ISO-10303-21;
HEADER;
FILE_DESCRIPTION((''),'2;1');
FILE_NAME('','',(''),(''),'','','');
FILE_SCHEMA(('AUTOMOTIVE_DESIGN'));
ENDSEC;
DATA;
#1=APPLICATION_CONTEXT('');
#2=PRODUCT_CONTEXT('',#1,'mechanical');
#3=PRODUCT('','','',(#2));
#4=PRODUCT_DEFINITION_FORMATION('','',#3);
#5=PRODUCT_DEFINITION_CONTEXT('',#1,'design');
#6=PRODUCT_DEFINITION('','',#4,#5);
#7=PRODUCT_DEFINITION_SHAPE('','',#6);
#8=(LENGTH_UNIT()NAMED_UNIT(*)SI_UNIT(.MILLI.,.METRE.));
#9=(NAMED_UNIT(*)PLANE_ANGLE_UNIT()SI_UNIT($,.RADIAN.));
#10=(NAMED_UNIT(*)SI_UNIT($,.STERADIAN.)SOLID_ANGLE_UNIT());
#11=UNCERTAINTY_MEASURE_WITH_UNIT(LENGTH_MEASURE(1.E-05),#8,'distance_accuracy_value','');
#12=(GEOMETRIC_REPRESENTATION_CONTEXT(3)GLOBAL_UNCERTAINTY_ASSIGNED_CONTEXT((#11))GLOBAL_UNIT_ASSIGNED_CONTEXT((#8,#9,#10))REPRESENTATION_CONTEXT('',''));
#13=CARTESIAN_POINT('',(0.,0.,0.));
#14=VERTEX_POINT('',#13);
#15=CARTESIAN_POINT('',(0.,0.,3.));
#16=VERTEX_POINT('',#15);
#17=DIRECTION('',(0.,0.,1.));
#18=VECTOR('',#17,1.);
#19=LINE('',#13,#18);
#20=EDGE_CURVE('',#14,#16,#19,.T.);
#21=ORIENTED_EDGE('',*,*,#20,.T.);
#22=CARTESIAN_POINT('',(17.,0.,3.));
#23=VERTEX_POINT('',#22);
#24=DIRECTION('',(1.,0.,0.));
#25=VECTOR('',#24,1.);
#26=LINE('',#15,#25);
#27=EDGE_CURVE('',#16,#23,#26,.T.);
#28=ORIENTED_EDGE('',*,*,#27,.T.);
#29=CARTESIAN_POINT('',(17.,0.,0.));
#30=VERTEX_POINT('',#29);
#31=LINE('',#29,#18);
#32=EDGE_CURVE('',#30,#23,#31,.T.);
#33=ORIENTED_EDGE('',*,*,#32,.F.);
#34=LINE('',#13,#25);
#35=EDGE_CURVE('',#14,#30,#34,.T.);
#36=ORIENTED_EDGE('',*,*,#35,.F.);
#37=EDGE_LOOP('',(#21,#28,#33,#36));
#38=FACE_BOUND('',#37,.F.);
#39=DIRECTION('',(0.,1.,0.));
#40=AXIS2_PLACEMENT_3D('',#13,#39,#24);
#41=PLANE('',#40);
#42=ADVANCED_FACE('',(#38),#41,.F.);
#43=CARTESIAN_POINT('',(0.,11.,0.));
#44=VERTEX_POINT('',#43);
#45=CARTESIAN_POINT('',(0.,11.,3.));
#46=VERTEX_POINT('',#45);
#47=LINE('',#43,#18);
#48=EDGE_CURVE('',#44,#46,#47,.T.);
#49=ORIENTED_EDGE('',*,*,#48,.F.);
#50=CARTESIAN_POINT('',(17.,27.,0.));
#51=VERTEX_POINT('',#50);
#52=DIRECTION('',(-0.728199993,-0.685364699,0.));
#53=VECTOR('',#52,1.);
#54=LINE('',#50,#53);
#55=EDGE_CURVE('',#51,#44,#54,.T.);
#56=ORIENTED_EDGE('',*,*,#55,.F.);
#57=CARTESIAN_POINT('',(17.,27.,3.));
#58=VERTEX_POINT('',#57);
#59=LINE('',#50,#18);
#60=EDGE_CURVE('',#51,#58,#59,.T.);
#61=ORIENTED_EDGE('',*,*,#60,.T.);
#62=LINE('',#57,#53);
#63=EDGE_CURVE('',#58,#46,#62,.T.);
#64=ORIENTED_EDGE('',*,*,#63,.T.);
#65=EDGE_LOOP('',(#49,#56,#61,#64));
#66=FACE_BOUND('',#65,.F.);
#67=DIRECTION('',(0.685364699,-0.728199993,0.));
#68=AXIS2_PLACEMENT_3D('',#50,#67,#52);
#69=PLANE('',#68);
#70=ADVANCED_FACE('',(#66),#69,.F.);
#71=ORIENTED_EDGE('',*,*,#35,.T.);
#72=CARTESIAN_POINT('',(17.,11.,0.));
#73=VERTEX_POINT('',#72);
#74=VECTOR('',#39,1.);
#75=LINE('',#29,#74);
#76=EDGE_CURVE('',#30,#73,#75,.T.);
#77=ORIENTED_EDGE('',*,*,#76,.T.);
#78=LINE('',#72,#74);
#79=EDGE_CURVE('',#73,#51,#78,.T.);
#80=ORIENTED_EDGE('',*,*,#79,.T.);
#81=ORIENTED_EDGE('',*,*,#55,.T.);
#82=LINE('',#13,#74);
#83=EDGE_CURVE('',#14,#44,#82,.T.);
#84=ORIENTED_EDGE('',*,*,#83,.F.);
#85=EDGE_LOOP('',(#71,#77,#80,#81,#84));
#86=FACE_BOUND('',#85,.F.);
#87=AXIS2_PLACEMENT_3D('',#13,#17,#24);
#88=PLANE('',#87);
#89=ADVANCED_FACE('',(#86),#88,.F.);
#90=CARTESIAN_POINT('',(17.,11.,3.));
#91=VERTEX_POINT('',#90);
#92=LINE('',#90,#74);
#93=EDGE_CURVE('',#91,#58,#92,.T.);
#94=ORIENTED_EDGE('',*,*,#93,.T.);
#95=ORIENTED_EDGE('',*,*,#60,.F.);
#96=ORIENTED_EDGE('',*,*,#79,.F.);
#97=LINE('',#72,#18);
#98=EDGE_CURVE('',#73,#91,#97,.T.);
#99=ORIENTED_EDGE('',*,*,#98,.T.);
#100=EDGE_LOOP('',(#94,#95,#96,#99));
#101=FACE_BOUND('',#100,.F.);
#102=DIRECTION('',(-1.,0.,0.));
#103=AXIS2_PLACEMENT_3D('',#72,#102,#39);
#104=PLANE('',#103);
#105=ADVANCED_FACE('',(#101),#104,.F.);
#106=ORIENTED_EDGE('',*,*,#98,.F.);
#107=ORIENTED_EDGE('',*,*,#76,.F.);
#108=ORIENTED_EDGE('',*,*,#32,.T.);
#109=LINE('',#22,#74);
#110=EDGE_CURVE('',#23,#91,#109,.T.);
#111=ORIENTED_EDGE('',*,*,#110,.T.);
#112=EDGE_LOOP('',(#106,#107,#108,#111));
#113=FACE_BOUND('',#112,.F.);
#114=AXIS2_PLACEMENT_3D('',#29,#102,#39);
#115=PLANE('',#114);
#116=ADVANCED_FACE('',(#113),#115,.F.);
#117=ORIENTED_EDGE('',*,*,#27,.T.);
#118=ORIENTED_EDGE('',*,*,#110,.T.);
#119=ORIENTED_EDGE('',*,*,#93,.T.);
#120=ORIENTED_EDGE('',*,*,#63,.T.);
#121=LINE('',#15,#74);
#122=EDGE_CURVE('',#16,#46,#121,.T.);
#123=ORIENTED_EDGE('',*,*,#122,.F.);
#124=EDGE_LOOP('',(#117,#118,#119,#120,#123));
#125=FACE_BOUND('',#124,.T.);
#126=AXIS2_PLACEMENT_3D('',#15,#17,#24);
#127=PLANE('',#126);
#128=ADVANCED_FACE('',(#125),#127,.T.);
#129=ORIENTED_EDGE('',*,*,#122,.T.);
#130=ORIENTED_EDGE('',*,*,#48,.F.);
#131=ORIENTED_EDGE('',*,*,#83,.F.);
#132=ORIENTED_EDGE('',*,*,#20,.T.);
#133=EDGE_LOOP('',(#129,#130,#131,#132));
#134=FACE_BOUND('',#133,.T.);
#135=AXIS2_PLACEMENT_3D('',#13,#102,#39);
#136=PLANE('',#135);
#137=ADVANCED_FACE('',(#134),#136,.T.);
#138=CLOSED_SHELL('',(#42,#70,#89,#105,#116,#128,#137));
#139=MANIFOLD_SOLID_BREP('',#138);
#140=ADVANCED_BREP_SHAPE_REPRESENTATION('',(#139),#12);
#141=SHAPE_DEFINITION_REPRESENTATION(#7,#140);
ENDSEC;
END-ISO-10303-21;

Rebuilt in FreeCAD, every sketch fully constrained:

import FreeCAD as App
import Part
import Sketcher


def add_polygon(sketch, points):
    """Adds a closed chain of lines whose ends are joined by coincident constraints."""
    first, n = sketch.GeometryCount, len(points)
    for a, b in zip(points, points[1:] + points[:1]):
        sketch.addGeometry(Part.LineSegment(App.Vector(*a, 0), App.Vector(*b, 0)), False)
    for i in range(n):
        sketch.addConstraint(Sketcher.Constraint("Coincident", first + i, 2, first + (i + 1) % n, 1))

doc = App.newDocument("Part")
body = doc.addObject("PartDesign::Body", "Body")

sketch1 = doc.addObject("Sketcher::SketchObject", "Sketch")
body.addObject(sketch1)
sketch1.AttachmentSupport = (doc.XY_Plane, [""])
sketch1.MapMode = "FlatFace"
add_polygon(sketch1, [(0, 11), (0, 0), (17, 0), (17, 27)])
sketch1.addConstraint([
    Sketcher.Constraint("Vertical", 0),
    Sketcher.Constraint("Horizontal", 1),
    Sketcher.Constraint("Vertical", 2),
    Sketcher.Constraint("Coincident", 0, 2, -1, 1),
    Sketcher.Constraint("DistanceX", 1, 1, 1, 2, 17.0),
    Sketcher.Constraint("DistanceY", 0, 2, 0, 1, 11.0),
    Sketcher.Constraint("DistanceY", 3, 2, 2, 2, 16.0),
])
pad1 = doc.addObject("PartDesign::Pad", "Pad")
body.addObject(pad1)
pad1.Profile = sketch1
pad1.Length = 3

doc.recompute()
